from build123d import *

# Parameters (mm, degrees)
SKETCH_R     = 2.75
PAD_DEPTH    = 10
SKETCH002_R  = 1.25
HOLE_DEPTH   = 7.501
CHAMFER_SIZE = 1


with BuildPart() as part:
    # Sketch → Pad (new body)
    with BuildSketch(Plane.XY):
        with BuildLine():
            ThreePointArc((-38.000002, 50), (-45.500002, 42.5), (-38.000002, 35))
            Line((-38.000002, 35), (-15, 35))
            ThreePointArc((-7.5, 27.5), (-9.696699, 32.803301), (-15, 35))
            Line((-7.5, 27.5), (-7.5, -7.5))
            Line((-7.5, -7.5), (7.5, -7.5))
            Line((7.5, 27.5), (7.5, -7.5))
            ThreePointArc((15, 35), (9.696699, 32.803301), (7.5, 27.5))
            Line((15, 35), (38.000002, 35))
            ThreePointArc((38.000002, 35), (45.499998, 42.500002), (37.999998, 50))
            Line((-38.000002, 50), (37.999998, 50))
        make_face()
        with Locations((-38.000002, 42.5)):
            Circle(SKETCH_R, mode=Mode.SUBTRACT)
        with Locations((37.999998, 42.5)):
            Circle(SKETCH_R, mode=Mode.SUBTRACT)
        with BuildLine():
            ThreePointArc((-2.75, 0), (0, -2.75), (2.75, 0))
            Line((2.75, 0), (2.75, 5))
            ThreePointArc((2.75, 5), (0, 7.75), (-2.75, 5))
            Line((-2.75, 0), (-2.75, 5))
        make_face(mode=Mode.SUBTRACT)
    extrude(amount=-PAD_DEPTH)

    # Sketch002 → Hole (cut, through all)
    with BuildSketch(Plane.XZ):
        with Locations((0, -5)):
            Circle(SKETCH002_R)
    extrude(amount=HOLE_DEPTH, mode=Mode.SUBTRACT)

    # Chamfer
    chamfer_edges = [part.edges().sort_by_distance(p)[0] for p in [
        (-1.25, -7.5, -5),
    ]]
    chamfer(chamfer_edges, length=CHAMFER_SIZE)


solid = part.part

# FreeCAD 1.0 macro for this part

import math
import FreeCAD as App
import Part
import Sketcher

V = App.Vector
Q = App.Units.Quantity


def edges_at(feature, points):
    """Names of the edges that pass closest to the given points."""
    edges = feature.Shape.Edges
    near = lambda p: min(range(len(edges)), key=lambda i: edges[i].distToShape(Part.Vertex(*p))[0])
    return sorted({f"Edge{near(p) + 1}" for p in points})

doc = App.newDocument("Part")
body = doc.addObject("PartDesign::Body", "Body")

sketch1 = doc.addObject("Sketcher::SketchObject", "Sketch")
body.addObject(sketch1)
sketch1.AttachmentSupport = (doc.XY_Plane, [""])
sketch1.MapMode = "FlatFace"
sketch1.addGeometry([
    Part.ArcOfCircle(Part.Circle(V(-38, 42.5, 0), V(0, 0, 1), 7.5), math.radians(90), math.radians(270)),
    Part.LineSegment(V(-38, 35, 0), V(-15, 35, 0)),
    Part.ArcOfCircle(Part.Circle(V(-15, 27.5, 0), V(0, 0, 1), 7.5), math.radians(0), math.radians(90)),
    Part.LineSegment(V(-7.5, 27.5, 0), V(-7.5, -7.5, 0)),
    Part.LineSegment(V(-7.5, -7.5, 0), V(7.5, -7.5, 0)),
    Part.LineSegment(V(7.5, -7.5, 0), V(7.5, 27.5, 0)),
    Part.ArcOfCircle(Part.Circle(V(15, 27.5, 0), V(0, 0, 1), 7.5), math.radians(90), math.radians(180)),
    Part.LineSegment(V(15, 35, 0), V(38, 35, 0)),
    Part.ArcOfCircle(Part.Circle(V(38, 42.5, 0), V(0, 0, 1), 7.5), math.radians(-90), math.radians(90)),
    Part.LineSegment(V(38, 50, 0), V(-38, 50, 0)),
    Part.ArcOfCircle(Part.Circle(V(0, 0, 0), V(0, 0, 1), 2.8), math.radians(180), math.radians(360)),
    Part.LineSegment(V(-2.8, 0, 0), V(-2.8, 5, 0)),
    Part.ArcOfCircle(Part.Circle(V(0, 5, 0), V(0, 0, 1), 2.8), math.radians(0), math.radians(180)),
    Part.LineSegment(V(2.8, 5, 0), V(2.8, 0, 0)),
    Part.Circle(V(-38, 42.5, 0), V(0, 0, 1), 2.8),
    Part.Circle(V(38, 42.5, 0), V(0, 0, 1), 2.8),
], False)
sketch1.addConstraint([
    Sketcher.Constraint("Tangent", 0, 2, 1, 1),
    Sketcher.Constraint("Tangent", 1, 2, 2, 2),
    Sketcher.Constraint("Tangent", 2, 1, 3, 1),
    Sketcher.Constraint("Coincident", 3, 2, 4, 1),
    Sketcher.Constraint("Coincident", 4, 2, 5, 1),
    Sketcher.Constraint("Tangent", 5, 2, 6, 2),
    Sketcher.Constraint("Tangent", 6, 1, 7, 1),
    Sketcher.Constraint("Tangent", 7, 2, 8, 1),
    Sketcher.Constraint("Tangent", 8, 2, 9, 1),
    Sketcher.Constraint("Tangent", 9, 2, 0, 1),
    Sketcher.Constraint("Tangent", 10, 1, 11, 1),
    Sketcher.Constraint("Tangent", 11, 2, 12, 2),
    Sketcher.Constraint("Tangent", 12, 1, 13, 1),
    Sketcher.Constraint("Tangent", 13, 2, 10, 2),
    Sketcher.Constraint("Horizontal", 1),
    Sketcher.Constraint("Vertical", 3),
    Sketcher.Constraint("Horizontal", 4),
    Sketcher.Constraint("Vertical", 5),
    Sketcher.Constraint("Horizontal", 7),
    Sketcher.Constraint("Horizontal", 9),
    Sketcher.Constraint("Vertical", 11),
    Sketcher.Constraint("Vertical", 13),
    Sketcher.Constraint("Coincident", 10, 3, -1, 1),
    Sketcher.Constraint("Coincident", 14, 3, 0, 3),
    Sketcher.Constraint("Coincident", 15, 3, 8, 3),
    Sketcher.Constraint("Equal", 0, 2),
    Sketcher.Constraint("Equal", 2, 6),
    Sketcher.Constraint("Equal", 6, 8),
    Sketcher.Constraint("Equal", 12, 14),
    Sketcher.Constraint("Equal", 14, 15),
    Sketcher.Constraint("Equal", 1, 7),
    Sketcher.Constraint("Diameter", 14, Q("5.5 mm")),
    Sketcher.Constraint("Radius", 0, Q("7.5 mm")),
    Sketcher.Constraint("DistanceX", 4, 1, 4, 2, Q("15 mm")),
    Sketcher.Constraint("DistanceX", 9, 2, 9, 1, Q("76 mm")),
    Sketcher.Constraint("DistanceY", 3, 2, 3, 1, Q("35 mm")),
    Sketcher.Constraint("DistanceY", 11, 1, 11, 2, Q("5 mm")),
    Sketcher.Constraint("DistanceX", 2, 3, -1, 1, Q("15 mm")),
    Sketcher.Constraint("DistanceY", -1, 1, 0, 2, Q("35 mm")),
])
pad1 = doc.addObject("PartDesign::Pad", "Pad")
body.addObject(pad1)
pad1.Profile = sketch1
pad1.Length = 10
pad1.Reversed = True

sketch2 = doc.addObject("Sketcher::SketchObject", "Sketch001")
body.addObject(sketch2)
sketch2.AttachmentSupport = (doc.XZ_Plane, [""])
sketch2.MapMode = "FlatFace"
sketch2.addGeometry(Part.Circle(V(0, -5, 0), V(0, 0, 1), 1.2), False)
sketch2.addConstraint([
    Sketcher.Constraint("PointOnObject", 0, 3, -2),
    Sketcher.Constraint("Diameter", 0, Q("2.5 mm")),
    Sketcher.Constraint("DistanceY", 0, 3, -1, 1, Q("5 mm")),
])
pocket1 = doc.addObject("PartDesign::Pocket", "Pocket")
body.addObject(pocket1)
pocket1.Profile = sketch2
pocket1.Type = "ThroughAll"
pocket1.Reversed = True
doc.recompute()

chamfer = doc.addObject("PartDesign::Chamfer", "Chamfer")
body.addObject(chamfer)
chamfer.Base = (pocket1, edges_at(pocket1, [(-1.25, -7.5, -5)]))
chamfer.Size = 1

doc.recompute()
